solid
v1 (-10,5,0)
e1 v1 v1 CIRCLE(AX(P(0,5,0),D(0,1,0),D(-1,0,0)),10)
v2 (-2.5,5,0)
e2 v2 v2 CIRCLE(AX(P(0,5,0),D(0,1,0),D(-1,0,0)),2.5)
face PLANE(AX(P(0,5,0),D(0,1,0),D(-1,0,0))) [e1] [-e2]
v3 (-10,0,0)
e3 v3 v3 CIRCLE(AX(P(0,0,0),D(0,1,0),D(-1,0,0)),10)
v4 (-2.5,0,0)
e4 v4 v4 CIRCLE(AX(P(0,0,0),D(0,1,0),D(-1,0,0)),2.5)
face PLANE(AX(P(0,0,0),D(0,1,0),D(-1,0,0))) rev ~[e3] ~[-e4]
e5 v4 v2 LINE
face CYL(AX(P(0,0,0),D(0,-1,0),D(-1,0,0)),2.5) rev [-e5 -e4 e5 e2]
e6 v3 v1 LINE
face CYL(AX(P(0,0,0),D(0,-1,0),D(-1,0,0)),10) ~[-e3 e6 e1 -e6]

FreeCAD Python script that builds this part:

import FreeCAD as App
import Part
import Sketcher
from FreeCAD import Vector
Q = App.Units.Quantity

doc = App.newDocument("Part")
params = doc.addObject("Spreadsheet::Sheet", "Params")
for row, (alias, value) in enumerate([
    ("sketch1_diameter", "20 mm"),
    ("sketch1_diameter2", "5 mm"),
    ("pad1_length", "5 mm"),
], start=1):
    params.set(f"A{row}", alias)
    params.set(f"B{row}", "=" + value)
    params.setAlias(f"B{row}", alias)

body = doc.addObject("PartDesign::Body", "Body")

sketch1 = doc.addObject("Sketcher::SketchObject", "Sketch")
body.addObject(sketch1)
sketch1.AttachmentSupport = (doc.XZ_Plane, [""])
sketch1.MapMode = "FlatFace"
sketch1.addGeometry(Part.Circle(Vector(0, 0, 0), Vector(0, 0, 1), 10), False)
sketch1.addGeometry(Part.Circle(Vector(0, 0, 0), Vector(0, 0, 1), 2.5), False)
sketch1.addConstraint(Sketcher.Constraint("Coincident", 0, 3, -1, 1))
sketch1.addConstraint(Sketcher.Constraint("Coincident", 1, 3, -1, 1))
sketch1.addConstraint(Sketcher.Constraint("Diameter", 0, Q("20 mm")))
sketch1.addConstraint(Sketcher.Constraint("Diameter", 1, Q("5 mm")))
sketch1.setExpression("Constraints[2]", "Params.sketch1_diameter")
sketch1.setExpression("Constraints[3]", "Params.sketch1_diameter2")
pad1 = doc.addObject("PartDesign::Pad", "Pad")
body.addObject(pad1)
pad1.Profile = sketch1
pad1.setExpression("Length", "Params.pad1_length")
pad1.Reversed = True

doc.recompute()
